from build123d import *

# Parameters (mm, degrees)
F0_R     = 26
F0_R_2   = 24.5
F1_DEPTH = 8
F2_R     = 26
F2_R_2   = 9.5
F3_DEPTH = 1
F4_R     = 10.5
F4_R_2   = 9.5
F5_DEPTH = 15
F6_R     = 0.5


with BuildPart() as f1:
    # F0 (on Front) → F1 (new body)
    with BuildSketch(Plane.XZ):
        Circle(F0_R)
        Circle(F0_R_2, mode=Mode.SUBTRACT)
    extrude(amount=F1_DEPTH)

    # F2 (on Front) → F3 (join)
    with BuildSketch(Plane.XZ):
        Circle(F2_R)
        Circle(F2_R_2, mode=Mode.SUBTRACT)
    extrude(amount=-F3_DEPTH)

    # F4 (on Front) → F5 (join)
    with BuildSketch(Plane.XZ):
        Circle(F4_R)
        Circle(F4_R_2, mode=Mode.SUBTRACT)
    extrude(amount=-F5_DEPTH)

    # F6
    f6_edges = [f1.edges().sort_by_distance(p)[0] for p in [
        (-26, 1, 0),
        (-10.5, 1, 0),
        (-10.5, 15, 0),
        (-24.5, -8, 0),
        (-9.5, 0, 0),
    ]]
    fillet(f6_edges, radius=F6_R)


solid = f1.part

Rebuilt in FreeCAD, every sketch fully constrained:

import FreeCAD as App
import Part
import Sketcher


def edges_at(feature, points):
    """Names of the edges that pass closest to the given points."""
    edges = feature.Shape.Edges
    near = lambda p: min(range(len(edges)), key=lambda i: edges[i].distToShape(Part.Vertex(*p))[0])
    return sorted({f"Edge{near(p) + 1}" for p in points})

doc = App.newDocument("Part")
body = doc.addObject("PartDesign::Body", "Body")

sketch1 = body.newObject("Sketcher::SketchObject", "Sketch")
sketch1.AttachmentSupport = (doc.getObject("XZ_Plane"), [""])
sketch1.MapMode = "FlatFace"
sketch1.addGeometry([
    Part.Circle(App.Vector(0, 0, 0), App.Vector(0, 0, 1), 26),
    Part.Circle(App.Vector(0, 0, 0), App.Vector(0, 0, 1), 24.5),
], False)
sketch1.addConstraint([
    Sketcher.Constraint("Coincident", 0, 3, -1, 1),
    Sketcher.Constraint("Coincident", 1, 3, -1, 1),
    Sketcher.Constraint("Diameter", 0, 52.0),
    Sketcher.Constraint("Diameter", 1, 49.0),
])
pad1 = body.newObject("PartDesign::Pad", "Pad")
pad1.Profile = sketch1
pad1.Length = 8

sketch2 = body.newObject("Sketcher::SketchObject", "Sketch001")
sketch2.AttachmentSupport = (doc.getObject("XZ_Plane"), [""])
sketch2.MapMode = "FlatFace"
sketch2.addGeometry([
    Part.Circle(App.Vector(0, 0, 0), App.Vector(0, 0, 1), 26),
    Part.Circle(App.Vector(0, 0, 0), App.Vector(0, 0, 1), 9.5),
], False)
sketch2.addConstraint([
    Sketcher.Constraint("Coincident", 0, 3, -1, 1),
    Sketcher.Constraint("Coincident", 1, 3, -1, 1),
    Sketcher.Constraint("Diameter", 0, 52.0),
    Sketcher.Constraint("Diameter", 1, 19.0),
])
pad2 = body.newObject("PartDesign::Pad", "Pad001")
pad2.Profile = sketch2
pad2.Length = 1
pad2.Reversed = True

sketch3 = body.newObject("Sketcher::SketchObject", "Sketch002")
sketch3.AttachmentSupport = (doc.getObject("XZ_Plane"), [""])
sketch3.MapMode = "FlatFace"
sketch3.addGeometry([
    Part.Circle(App.Vector(0, 0, 0), App.Vector(0, 0, 1), 10.5),
    Part.Circle(App.Vector(0, 0, 0), App.Vector(0, 0, 1), 9.5),
], False)
sketch3.addConstraint([
    Sketcher.Constraint("Coincident", 0, 3, -1, 1),
    Sketcher.Constraint("Coincident", 1, 3, -1, 1),
    Sketcher.Constraint("Diameter", 0, 21.0),
    Sketcher.Constraint("Diameter", 1, 19.0),
])
pad3 = body.newObject("PartDesign::Pad", "Pad002")
pad3.Profile = sketch3
pad3.Length = 15
pad3.Reversed = True
doc.recompute()

fillet = body.newObject("PartDesign::Fillet", "Fillet")
fillet.Base = (pad3, edges_at(pad3, [
    (-26, 1, 0),
    (-10.5, 1, 0),
    (-10.5, 15, 0),
    (-24.5, -8, 0),
    (-9.5, 0, 0),
]))
fillet.Radius = 0.5

doc.recompute()
